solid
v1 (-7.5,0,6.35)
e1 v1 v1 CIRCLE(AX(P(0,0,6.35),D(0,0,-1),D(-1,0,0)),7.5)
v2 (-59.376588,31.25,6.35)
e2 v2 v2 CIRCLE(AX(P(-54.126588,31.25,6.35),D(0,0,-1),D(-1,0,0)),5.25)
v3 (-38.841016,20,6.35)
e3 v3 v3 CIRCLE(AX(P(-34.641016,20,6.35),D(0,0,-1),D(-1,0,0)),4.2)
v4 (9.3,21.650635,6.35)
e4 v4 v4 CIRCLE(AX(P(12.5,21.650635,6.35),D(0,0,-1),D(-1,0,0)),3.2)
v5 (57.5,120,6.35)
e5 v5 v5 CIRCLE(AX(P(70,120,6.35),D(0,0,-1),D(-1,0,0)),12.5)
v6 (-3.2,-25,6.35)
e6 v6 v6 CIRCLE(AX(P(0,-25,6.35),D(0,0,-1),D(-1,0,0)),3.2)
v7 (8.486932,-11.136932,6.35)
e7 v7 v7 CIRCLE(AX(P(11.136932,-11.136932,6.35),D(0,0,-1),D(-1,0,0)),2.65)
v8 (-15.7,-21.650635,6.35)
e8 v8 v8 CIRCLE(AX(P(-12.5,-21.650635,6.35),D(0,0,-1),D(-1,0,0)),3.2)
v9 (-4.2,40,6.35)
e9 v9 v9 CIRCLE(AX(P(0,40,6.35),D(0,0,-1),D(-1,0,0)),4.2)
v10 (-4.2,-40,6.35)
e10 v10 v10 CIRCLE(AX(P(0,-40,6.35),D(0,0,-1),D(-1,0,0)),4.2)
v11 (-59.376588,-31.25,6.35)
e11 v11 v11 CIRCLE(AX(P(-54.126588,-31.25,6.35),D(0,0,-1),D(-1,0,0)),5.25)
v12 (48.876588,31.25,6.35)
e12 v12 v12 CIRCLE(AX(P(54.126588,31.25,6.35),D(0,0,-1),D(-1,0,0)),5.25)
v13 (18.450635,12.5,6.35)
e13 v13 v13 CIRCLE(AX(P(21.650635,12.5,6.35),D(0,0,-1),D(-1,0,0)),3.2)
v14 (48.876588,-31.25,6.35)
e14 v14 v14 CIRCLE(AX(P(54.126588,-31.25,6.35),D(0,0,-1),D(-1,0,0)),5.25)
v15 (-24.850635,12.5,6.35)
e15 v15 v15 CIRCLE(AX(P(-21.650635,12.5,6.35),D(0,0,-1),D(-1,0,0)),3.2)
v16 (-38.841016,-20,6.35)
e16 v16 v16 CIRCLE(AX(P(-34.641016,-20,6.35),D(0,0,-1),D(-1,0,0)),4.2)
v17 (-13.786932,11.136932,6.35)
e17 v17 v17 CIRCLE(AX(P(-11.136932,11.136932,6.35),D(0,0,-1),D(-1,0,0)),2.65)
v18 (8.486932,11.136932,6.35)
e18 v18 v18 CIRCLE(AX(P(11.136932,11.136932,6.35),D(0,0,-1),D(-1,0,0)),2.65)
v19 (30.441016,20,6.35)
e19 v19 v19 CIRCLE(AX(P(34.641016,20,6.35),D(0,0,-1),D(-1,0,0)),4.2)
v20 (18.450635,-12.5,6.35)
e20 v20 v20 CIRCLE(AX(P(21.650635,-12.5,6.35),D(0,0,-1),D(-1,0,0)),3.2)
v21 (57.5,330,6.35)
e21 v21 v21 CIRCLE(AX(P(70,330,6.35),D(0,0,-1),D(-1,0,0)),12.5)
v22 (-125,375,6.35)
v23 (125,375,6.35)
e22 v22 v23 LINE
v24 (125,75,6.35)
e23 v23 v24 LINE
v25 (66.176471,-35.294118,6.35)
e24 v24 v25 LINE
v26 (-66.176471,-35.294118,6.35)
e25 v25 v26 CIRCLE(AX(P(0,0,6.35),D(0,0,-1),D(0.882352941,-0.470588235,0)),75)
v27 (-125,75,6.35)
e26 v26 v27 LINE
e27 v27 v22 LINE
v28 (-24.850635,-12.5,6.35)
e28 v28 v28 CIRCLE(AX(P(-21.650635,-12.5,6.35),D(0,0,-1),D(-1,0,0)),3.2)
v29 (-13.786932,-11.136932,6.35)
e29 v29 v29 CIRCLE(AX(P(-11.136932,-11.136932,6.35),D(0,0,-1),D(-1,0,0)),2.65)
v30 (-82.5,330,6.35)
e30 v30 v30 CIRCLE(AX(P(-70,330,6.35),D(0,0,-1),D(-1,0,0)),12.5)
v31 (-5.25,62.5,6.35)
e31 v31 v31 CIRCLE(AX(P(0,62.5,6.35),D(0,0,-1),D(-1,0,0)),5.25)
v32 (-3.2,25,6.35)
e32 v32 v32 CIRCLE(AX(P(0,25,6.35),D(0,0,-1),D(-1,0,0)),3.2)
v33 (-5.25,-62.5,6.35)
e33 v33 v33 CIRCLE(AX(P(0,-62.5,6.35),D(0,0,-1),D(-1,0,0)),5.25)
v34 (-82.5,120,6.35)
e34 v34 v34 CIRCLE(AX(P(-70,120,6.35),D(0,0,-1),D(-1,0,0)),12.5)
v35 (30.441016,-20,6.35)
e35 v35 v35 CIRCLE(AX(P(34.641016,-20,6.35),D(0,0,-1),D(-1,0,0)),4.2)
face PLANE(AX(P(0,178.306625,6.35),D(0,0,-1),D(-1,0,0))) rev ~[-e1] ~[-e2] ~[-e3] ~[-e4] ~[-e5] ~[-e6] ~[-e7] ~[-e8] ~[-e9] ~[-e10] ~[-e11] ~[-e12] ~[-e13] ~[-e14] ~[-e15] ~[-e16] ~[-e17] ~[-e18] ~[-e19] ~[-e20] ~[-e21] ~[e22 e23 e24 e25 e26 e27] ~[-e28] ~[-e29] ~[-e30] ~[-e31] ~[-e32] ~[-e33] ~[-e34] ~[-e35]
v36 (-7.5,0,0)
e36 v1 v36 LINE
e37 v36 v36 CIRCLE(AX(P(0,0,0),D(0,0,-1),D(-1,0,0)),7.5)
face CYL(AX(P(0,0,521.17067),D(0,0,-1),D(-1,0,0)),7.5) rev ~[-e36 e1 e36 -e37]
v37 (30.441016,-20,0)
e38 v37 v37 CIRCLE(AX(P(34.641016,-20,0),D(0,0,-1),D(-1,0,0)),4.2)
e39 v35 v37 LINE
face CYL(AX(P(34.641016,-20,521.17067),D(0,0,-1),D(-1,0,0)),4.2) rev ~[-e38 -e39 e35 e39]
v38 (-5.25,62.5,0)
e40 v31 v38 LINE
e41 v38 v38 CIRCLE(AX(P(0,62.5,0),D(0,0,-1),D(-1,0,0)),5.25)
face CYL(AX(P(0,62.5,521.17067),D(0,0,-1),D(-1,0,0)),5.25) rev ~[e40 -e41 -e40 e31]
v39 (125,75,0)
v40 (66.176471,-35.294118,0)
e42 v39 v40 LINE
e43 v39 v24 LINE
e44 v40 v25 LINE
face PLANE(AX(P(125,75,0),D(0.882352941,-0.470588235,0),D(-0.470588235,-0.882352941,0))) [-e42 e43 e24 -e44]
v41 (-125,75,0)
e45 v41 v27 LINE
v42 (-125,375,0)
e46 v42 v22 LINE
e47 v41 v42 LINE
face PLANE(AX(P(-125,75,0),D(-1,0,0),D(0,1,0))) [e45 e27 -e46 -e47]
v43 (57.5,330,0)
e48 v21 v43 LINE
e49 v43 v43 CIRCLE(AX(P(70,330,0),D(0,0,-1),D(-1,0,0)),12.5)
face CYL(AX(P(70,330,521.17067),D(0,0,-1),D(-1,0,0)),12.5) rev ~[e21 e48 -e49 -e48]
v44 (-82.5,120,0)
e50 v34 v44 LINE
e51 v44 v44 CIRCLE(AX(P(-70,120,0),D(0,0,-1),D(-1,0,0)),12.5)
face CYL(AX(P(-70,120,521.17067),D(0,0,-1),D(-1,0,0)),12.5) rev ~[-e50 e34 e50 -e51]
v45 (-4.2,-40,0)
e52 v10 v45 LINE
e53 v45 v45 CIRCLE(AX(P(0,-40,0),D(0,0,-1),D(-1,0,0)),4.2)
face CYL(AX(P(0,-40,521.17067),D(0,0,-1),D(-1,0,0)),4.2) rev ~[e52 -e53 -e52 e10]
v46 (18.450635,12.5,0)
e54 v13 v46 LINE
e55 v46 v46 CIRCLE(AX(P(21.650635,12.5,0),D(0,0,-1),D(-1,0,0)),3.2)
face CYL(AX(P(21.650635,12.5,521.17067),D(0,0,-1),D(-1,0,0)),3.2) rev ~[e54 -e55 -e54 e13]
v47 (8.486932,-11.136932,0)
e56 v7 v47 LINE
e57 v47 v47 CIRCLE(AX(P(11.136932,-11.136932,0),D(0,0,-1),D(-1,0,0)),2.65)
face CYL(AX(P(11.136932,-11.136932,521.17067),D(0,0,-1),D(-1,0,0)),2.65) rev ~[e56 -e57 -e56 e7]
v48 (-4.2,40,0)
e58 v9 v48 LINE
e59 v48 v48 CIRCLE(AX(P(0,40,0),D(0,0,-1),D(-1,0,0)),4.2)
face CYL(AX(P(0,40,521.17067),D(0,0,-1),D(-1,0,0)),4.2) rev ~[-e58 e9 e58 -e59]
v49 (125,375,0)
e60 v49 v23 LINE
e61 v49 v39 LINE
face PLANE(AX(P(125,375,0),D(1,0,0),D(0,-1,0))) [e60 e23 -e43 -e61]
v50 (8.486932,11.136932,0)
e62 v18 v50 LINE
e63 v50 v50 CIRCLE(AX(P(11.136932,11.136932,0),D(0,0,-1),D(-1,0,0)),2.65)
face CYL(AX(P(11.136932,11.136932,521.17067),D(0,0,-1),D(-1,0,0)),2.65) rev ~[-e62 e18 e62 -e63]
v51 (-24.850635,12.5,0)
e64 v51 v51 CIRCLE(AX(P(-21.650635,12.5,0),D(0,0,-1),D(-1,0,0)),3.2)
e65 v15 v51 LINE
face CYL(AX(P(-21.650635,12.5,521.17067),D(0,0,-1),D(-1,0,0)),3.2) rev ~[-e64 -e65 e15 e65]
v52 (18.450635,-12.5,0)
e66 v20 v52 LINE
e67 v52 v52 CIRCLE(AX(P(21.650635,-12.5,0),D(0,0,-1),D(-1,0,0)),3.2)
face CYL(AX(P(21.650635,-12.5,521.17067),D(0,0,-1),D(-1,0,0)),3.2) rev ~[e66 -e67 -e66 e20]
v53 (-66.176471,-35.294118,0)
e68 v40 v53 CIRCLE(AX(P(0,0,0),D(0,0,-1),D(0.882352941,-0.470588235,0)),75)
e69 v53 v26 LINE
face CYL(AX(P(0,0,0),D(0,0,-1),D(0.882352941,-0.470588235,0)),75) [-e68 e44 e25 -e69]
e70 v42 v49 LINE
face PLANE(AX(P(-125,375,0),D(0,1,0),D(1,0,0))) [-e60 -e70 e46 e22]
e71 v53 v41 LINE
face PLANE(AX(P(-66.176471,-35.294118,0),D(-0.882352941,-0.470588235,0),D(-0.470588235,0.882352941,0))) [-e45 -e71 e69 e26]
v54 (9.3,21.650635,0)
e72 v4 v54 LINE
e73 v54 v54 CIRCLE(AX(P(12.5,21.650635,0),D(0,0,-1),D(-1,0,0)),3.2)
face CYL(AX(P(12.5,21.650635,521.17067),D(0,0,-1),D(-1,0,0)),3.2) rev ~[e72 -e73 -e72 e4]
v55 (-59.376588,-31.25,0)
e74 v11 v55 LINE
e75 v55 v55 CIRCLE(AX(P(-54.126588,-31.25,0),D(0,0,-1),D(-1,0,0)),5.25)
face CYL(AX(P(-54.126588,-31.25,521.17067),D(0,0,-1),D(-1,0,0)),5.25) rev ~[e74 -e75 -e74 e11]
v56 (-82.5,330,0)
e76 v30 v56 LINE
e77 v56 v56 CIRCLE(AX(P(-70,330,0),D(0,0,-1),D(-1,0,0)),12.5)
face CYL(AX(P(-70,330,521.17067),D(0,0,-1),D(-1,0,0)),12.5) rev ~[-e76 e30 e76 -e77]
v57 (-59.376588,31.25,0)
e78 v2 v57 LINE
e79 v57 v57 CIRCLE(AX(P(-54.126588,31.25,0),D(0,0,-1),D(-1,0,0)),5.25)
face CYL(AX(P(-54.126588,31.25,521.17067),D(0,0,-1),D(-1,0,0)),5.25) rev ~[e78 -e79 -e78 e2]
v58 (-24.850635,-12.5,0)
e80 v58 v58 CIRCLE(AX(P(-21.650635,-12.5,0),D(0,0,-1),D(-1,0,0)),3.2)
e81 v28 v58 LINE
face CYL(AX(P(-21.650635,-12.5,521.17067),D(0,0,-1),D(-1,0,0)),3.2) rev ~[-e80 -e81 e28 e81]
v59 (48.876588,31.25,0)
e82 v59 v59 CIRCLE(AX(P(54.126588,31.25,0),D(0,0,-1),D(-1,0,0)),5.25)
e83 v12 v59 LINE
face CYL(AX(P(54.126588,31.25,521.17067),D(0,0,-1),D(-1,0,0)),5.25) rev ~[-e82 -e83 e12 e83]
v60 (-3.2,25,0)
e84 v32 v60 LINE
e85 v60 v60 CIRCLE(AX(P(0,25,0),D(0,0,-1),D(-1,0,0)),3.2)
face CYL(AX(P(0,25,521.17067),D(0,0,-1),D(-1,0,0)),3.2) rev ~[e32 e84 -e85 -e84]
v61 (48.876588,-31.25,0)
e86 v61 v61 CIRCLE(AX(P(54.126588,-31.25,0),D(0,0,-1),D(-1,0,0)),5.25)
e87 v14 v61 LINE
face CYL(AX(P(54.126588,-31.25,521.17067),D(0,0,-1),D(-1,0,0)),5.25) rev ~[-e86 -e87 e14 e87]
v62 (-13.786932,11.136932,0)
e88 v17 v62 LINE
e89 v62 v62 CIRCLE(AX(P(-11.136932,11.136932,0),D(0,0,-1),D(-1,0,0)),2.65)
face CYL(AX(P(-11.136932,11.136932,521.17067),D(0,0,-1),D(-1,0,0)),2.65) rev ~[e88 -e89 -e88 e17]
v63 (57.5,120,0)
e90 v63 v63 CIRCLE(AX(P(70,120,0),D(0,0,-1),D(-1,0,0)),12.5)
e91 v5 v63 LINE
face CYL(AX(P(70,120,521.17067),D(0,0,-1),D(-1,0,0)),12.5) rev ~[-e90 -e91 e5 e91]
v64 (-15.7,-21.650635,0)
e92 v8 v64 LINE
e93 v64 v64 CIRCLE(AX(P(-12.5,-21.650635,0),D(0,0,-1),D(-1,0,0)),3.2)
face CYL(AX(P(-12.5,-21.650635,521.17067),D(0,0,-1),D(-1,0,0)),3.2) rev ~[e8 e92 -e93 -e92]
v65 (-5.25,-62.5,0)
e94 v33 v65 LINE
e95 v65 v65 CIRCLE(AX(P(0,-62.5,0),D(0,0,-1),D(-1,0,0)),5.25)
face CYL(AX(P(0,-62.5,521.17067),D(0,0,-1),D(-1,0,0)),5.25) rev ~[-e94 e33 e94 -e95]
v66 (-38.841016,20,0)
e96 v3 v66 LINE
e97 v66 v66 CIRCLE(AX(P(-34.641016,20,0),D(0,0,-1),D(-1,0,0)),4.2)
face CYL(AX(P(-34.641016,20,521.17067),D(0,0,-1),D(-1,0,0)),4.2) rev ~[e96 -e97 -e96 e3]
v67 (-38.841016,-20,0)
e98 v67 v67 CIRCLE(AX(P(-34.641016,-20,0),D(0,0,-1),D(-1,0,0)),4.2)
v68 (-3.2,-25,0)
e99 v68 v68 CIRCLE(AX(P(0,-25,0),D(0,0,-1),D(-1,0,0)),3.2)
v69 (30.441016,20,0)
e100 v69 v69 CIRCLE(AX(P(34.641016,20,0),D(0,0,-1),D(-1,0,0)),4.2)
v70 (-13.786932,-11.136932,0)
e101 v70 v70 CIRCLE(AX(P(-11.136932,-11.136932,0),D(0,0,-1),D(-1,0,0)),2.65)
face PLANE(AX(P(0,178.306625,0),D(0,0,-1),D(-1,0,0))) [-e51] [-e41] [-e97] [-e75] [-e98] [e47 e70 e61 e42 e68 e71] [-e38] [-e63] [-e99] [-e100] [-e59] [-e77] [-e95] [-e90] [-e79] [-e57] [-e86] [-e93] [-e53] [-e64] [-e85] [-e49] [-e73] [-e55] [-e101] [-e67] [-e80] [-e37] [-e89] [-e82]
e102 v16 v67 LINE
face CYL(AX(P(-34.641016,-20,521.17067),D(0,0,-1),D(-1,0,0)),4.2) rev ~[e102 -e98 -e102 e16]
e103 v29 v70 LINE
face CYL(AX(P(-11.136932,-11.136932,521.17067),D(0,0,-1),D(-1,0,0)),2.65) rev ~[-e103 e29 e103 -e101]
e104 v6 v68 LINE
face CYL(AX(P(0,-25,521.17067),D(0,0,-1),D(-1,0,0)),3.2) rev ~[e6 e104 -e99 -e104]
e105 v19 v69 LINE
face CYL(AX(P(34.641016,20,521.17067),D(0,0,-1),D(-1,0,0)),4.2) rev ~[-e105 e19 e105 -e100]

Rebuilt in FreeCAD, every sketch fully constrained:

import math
import FreeCAD as App
import Part
import Sketcher

V = App.Vector

doc = App.newDocument("Part")
params = doc.addObject("Spreadsheet::Sheet", "Params")
for row, (alias, value) in enumerate([
    ("sketch1_radius", "75 mm"),
    ("sketch1_width", "250 mm"),
    ("sketch1_height", "300 mm"),
    ("sketch1_length", "125 mm"),
    ("pad1_length", "6.35 mm"),
    ("sketch2_diameter", "8.4 mm"),
    ("hole_diameter", "8.4 mm"),
    ("sketch3_diameter", "6.4 mm"),
    ("hole2_diameter", "6.4 mm"),
    ("sketch4_diameter", "6.4 mm"),
    ("hole3_diameter", "6.4 mm"),
    ("sketch5_diameter", "10.5 mm"),
    ("hole4_diameter", "10.5 mm"),
    ("sketch6_diameter", "5.3 mm"),
    ("hole5_diameter", "5.3 mm"),
    ("sketch7_diameter", "25 mm"),
    ("hole6_diameter", "25 mm"),
    ("sketch8_diameter", "15 mm"),
    ("hole7_diameter", "15 mm"),
], start=1):
    params.set(f"A{row}", alias)
    params.set(f"B{row}", "=" + value)
    params.setAlias(f"B{row}", alias)

body = doc.addObject("PartDesign::Body", "Body")

sketch1 = doc.addObject("Sketcher::SketchObject", "Sketch")
body.addObject(sketch1)
sketch1.AttachmentSupport = (doc.XY_Plane, [""])
sketch1.MapMode = "FlatFace"
sketch1.addGeometry([
    Part.LineSegment(V(125, 375, 0), V(-125, 375, 0)),
    Part.LineSegment(V(-125, 375, 0), V(-125, 75, 0)),
    Part.LineSegment(V(-125, 75, 0), V(-66, -35, 0)),
    Part.ArcOfCircle(Part.Circle(V(0, 0, 0), V(0, 0, 1), 75), math.radians(-152), math.radians(-28)),
    Part.LineSegment(V(66, -35, 0), V(125, 75, 0)),
    Part.LineSegment(V(125, 75, 0), V(125, 375, 0)),
], False)
sketch1.addConstraint([
    Sketcher.Constraint("Coincident", 0, 2, 1, 1),
    Sketcher.Constraint("Coincident", 1, 2, 2, 1),
    Sketcher.Constraint("Tangent", 2, 2, 3, 1),
    Sketcher.Constraint("Tangent", 3, 2, 4, 1),
    Sketcher.Constraint("Coincident", 4, 2, 5, 1),
    Sketcher.Constraint("Coincident", 5, 2, 0, 1),
    Sketcher.Constraint("Horizontal", 0),
    Sketcher.Constraint("Vertical", 1),
    Sketcher.Constraint("Vertical", 5),
    Sketcher.Constraint("Coincident", 3, 3, -1, 1),
    Sketcher.Constraint("Symmetric", 1, 2, 4, 2, -2),
    Sketcher.Constraint("Radius", 3, 75.0),
    Sketcher.Constraint("DistanceX", 0, 2, 0, 1, 250.0),
    Sketcher.Constraint("DistanceY", 1, 2, 1, 1, 300.0),
    Sketcher.Constraint("Distance", 2, 125.0),
])
sketch1.setExpression("Constraints[11]", "Params.sketch1_radius")
sketch1.setExpression("Constraints[12]", "Params.sketch1_width")
sketch1.setExpression("Constraints[13]", "Params.sketch1_height")
sketch1.setExpression("Constraints[14]", "Params.sketch1_length")
pad1 = doc.addObject("PartDesign::Pad", "Pad")
body.addObject(pad1)
pad1.Profile = sketch1
pad1.setExpression("Length", "Params.pad1_length")

sketch2 = doc.addObject("Sketcher::SketchObject", "Sketch001")
body.addObject(sketch2)
sketch2.AttachmentSupport = (doc.XY_Plane, [""])
sketch2.MapMode = "FlatFace"
sketch2.AttachmentOffset = App.Placement(V(0, 0, 6.35), App.Rotation())
sketch2.addGeometry([
    Part.Circle(V(-34.6, 20, 0), V(0, 0, 1), 4.2),
    Part.Circle(V(-34.6, -20, 0), V(0, 0, 1), 4.2),
    Part.Circle(V(0, -40, 0), V(0, 0, 1), 4.2),
    Part.Circle(V(34.6, -20, 0), V(0, 0, 1), 4.2),
    Part.Circle(V(34.6, 20, 0), V(0, 0, 1), 4.2),
    Part.Circle(V(0, 40, 0), V(0, 0, 1), 4.2),
], False)
sketch2.addConstraint([
    Sketcher.Constraint("Equal", 0, 1),
    Sketcher.Constraint("Equal", 1, 2),
    Sketcher.Constraint("Equal", 2, 3),
    Sketcher.Constraint("Equal", 3, 4),
    Sketcher.Constraint("Equal", 4, 5),
    Sketcher.Constraint("Symmetric", 0, 3, 3, 3, -1, 1),
    Sketcher.Constraint("Symmetric", 1, 3, 4, 3, -1, 1),
    Sketcher.Constraint("Symmetric", 2, 3, 5, 3, -1, 1),
    Sketcher.Constraint("Symmetric", 1, 3, 3, 3, -2),
    Sketcher.Constraint("PointOnObject", 2, 3, -2),
    Sketcher.Constraint("Diameter", 0, 8.4),
    Sketcher.Constraint("DistanceY", -1, 1, 0, 3, 20.0),
    Sketcher.Constraint("DistanceY", 2, 3, -1, 1, 40.0),
    Sketcher.Constraint("DistanceX", 0, 3, -1, 1, 34.641016),
])
sketch2.setExpression("Constraints[10]", "Params.sketch2_diameter")
doc.recompute()
hole = doc.addObject("PartDesign::Hole", "Hole")
body.addObject(hole)
hole.Profile = sketch2
hole.ThreadType = "None"
hole.setExpression("Diameter", "Params.hole_diameter")
hole.DepthType = "ThroughAll"

sketch3 = doc.addObject("Sketcher::SketchObject", "Sketch002")
body.addObject(sketch3)
sketch3.AttachmentSupport = (doc.XY_Plane, [""])
sketch3.MapMode = "FlatFace"
sketch3.AttachmentOffset = App.Placement(V(0, 0, 6.35), App.Rotation())
sketch3.addGeometry([
    Part.Circle(V(0, 25, 0), V(0, 0, 1), 3.2),
    Part.Circle(V(21.7, -12.5, 0), V(0, 0, 1), 3.2),
    Part.Circle(V(21.7, 12.5, 0), V(0, 0, 1), 3.2),
    Part.Circle(V(-21.7, 12.5, 0), V(0, 0, 1), 3.2),
    Part.Circle(V(-21.7, -12.5, 0), V(0, 0, 1), 3.2),
    Part.Circle(V(0, -25, 0), V(0, 0, 1), 3.2),
], False)
sketch3.addConstraint([
    Sketcher.Constraint("Equal", 0, 1),
    Sketcher.Constraint("Equal", 1, 2),
    Sketcher.Constraint("Equal", 2, 3),
    Sketcher.Constraint("Equal", 3, 4),
    Sketcher.Constraint("Equal", 4, 5),
    Sketcher.Constraint("Symmetric", 1, 3, 3, 3, -1, 1),
    Sketcher.Constraint("Symmetric", 2, 3, 4, 3, -1, 1),
    Sketcher.Constraint("Symmetric", 0, 3, 5, 3, -1, 1),
    Sketcher.Constraint("Symmetric", 2, 3, 3, 3, -2),
    Sketcher.Constraint("PointOnObject", 0, 3, -2),
    Sketcher.Constraint("Diameter", 0, 6.4),
    Sketcher.Constraint("DistanceY", -1, 1, 0, 3, 25.0),
    Sketcher.Constraint("DistanceY", 1, 3, 2, 3, 25.0),
    Sketcher.Constraint("DistanceX", 3, 3, 2, 3, 43.30127),
])
sketch3.setExpression("Constraints[10]", "Params.sketch3_diameter")
doc.recompute()
hole2 = doc.addObject("PartDesign::Hole", "Hole001")
body.addObject(hole2)
hole2.Profile = sketch3
hole2.ThreadType = "None"
hole2.setExpression("Diameter", "Params.hole2_diameter")
hole2.DepthType = "ThroughAll"

sketch4 = doc.addObject("Sketcher::SketchObject", "Sketch003")
body.addObject(sketch4)
sketch4.AttachmentSupport = (doc.XY_Plane, [""])
sketch4.MapMode = "FlatFace"
sketch4.AttachmentOffset = App.Placement(V(0, 0, 6.35), App.Rotation())
sketch4.addGeometry([
    Part.Circle(V(12.5, 21.7, 0), V(0, 0, 1), 3.2),
    Part.Circle(V(-21.7, 12.5, 0), V(0, 0, 1), 3.2),
    Part.Circle(V(-12.5, -21.7, 0), V(0, 0, 1), 3.2),
    Part.Circle(V(21.7, -12.5, 0), V(0, 0, 1), 3.2),
], False)
sketch4.addConstraint([
    Sketcher.Constraint("Equal", 0, 1),
    Sketcher.Constraint("Equal", 1, 2),
    Sketcher.Constraint("Equal", 2, 3),
    Sketcher.Constraint("Symmetric", 0, 3, 2, 3, -1, 1),
    Sketcher.Constraint("Symmetric", 1, 3, 3, 3, -1, 1),
    Sketcher.Constraint("Diameter", 0, 6.4),
    Sketcher.Constraint("DistanceX", 2, 3, 0, 3, 25.0),
    Sketcher.Constraint("DistanceY", 3, 3, 1, 3, 25.0),
    Sketcher.Constraint("DistanceY", 2, 3, 0, 3, 43.30127),
    Sketcher.Constraint("DistanceX", 1, 3, 3, 3, 43.30127),
])
sketch4.setExpression("Constraints[5]", "Params.sketch4_diameter")
doc.recompute()
hole3 = doc.addObject("PartDesign::Hole", "Hole002")
body.addObject(hole3)
hole3.Profile = sketch4
hole3.ThreadType = "None"
hole3.setExpression("Diameter", "Params.hole3_diameter")
hole3.DepthType = "ThroughAll"

sketch5 = doc.addObject("Sketcher::SketchObject", "Sketch004")
body.addObject(sketch5)
sketch5.AttachmentSupport = (doc.XY_Plane, [""])
sketch5.MapMode = "FlatFace"
sketch5.AttachmentOffset = App.Placement(V(0, 0, 6.35), App.Rotation())
sketch5.addGeometry([
    Part.Circle(V(-54, 31, 0), V(0, 0, 1), 5),
    Part.Circle(V(0, 62, 0), V(0, 0, 1), 5),
    Part.Circle(V(54, 31, 0), V(0, 0, 1), 5),
    Part.Circle(V(54, -31, 0), V(0, 0, 1), 5),
    Part.Circle(V(0, -62, 0), V(0, 0, 1), 5),
    Part.Circle(V(-54, -31, 0), V(0, 0, 1), 5),
], False)
sketch5.addConstraint([
    Sketcher.Constraint("Equal", 0, 1),
    Sketcher.Constraint("Equal", 1, 2),
    Sketcher.Constraint("Equal", 2, 3),
    Sketcher.Constraint("Equal", 3, 4),
    Sketcher.Constraint("Equal", 4, 5),
    Sketcher.Constraint("Symmetric", 0, 3, 3, 3, -1, 1),
    Sketcher.Constraint("Symmetric", 1, 3, 4, 3, -1, 1),
    Sketcher.Constraint("Symmetric", 2, 3, 5, 3, -1, 1),
    Sketcher.Constraint("Symmetric", 0, 3, 2, 3, -2),
    Sketcher.Constraint("PointOnObject", 1, 3, -2),
    Sketcher.Constraint("Diameter", 0, 10.5),
    Sketcher.Constraint("DistanceY", 4, 3, 1, 3, 125.0),
    Sketcher.Constraint("DistanceY", 3, 3, 2, 3, 62.5),
    Sketcher.Constraint("DistanceX", 0, 3, -1, 1, 54.126588),
])
sketch5.setExpression("Constraints[10]", "Params.sketch5_diameter")
doc.recompute()
hole4 = doc.addObject("PartDesign::Hole", "Hole003")
body.addObject(hole4)
hole4.Profile = sketch5
hole4.ThreadType = "None"
hole4.setExpression("Diameter", "Params.hole4_diameter")
hole4.DepthType = "ThroughAll"

sketch6 = doc.addObject("Sketcher::SketchObject", "Sketch005")
body.addObject(sketch6)
sketch6.AttachmentSupport = (doc.XY_Plane, [""])
sketch6.MapMode = "FlatFace"
sketch6.AttachmentOffset = App.Placement(V(0, 0, 6.35), App.Rotation())
sketch6.addGeometry([
    Part.Circle(V(-11.1, 11.1, 0), V(0, 0, 1), 2.6),
    Part.Circle(V(11.1, 11.1, 0), V(0, 0, 1), 2.6),
    Part.Circle(V(11.1, -11.1, 0), V(0, 0, 1), 2.6),
    Part.Circle(V(-11.1, -11.1, 0), V(0, 0, 1), 2.6),
], False)
sketch6.addConstraint([
    Sketcher.Constraint("Equal", 0, 1),
    Sketcher.Constraint("Equal", 1, 2),
    Sketcher.Constraint("Equal", 2, 3),
    Sketcher.Constraint("Symmetric", 0, 3, 2, 3, -1, 1),
    Sketcher.Constraint("Symmetric", 1, 3, 3, 3, -1, 1),
    Sketcher.Constraint("Symmetric", 0, 3, 1, 3, -2),
    Sketcher.Constraint("Diameter", 0, 5.3),
    Sketcher.Constraint("DistanceX", 0, 3, -1, 1, 11.136932),
    Sketcher.Constraint("DistanceY", -1, 1, 0, 3, 11.136932),
])
sketch6.setExpression("Constraints[6]", "Params.sketch6_diameter")
doc.recompute()
hole5 = doc.addObject("PartDesign::Hole", "Hole004")
body.addObject(hole5)
hole5.Profile = sketch6
hole5.ThreadType = "None"
hole5.setExpression("Diameter", "Params.hole5_diameter")
hole5.DepthType = "ThroughAll"

sketch7 = doc.addObject("Sketcher::SketchObject", "Sketch006")
body.addObject(sketch7)
sketch7.AttachmentSupport = (doc.XY_Plane, [""])
sketch7.MapMode = "FlatFace"
sketch7.AttachmentOffset = App.Placement(V(0, 0, 6.35), App.Rotation())
sketch7.addGeometry([
    Part.Circle(V(-70, 330, 0), V(0, 0, 1), 12),
    Part.Circle(V(-70, 120, 0), V(0, 0, 1), 12),
    Part.Circle(V(70, 120, 0), V(0, 0, 1), 12),
    Part.Circle(V(70, 330, 0), V(0, 0, 1), 12),
], False)
sketch7.addConstraint([
    Sketcher.Constraint("Equal", 0, 1),
    Sketcher.Constraint("Equal", 1, 2),
    Sketcher.Constraint("Equal", 2, 3),
    Sketcher.Constraint("Symmetric", 1, 3, 2, 3, -2),
    Sketcher.Constraint("Symmetric", 0, 3, 3, 3, -2),
    Sketcher.Constraint("Vertical", 0, 3, 1, 3),
    Sketcher.Constraint("Diameter", 0, 25.0),
    Sketcher.Constraint("DistanceX", 0, 3, -1, 1, 70.0),
    Sketcher.Constraint("DistanceY", -1, 1, 0, 3, 330.0),
    Sketcher.Constraint("DistanceY", -1, 1, 1, 3, 120.0),
])
sketch7.setExpression("Constraints[6]", "Params.sketch7_diameter")
doc.recompute()
hole6 = doc.addObject("PartDesign::Hole", "Hole005")
body.addObject(hole6)
hole6.Profile = sketch7
hole6.ThreadType = "None"
hole6.setExpression("Diameter", "Params.hole6_diameter")
hole6.DepthType = "ThroughAll"

sketch8 = doc.addObject("Sketcher::SketchObject", "Sketch007")
body.addObject(sketch8)
sketch8.AttachmentSupport = (doc.XY_Plane, [""])
sketch8.MapMode = "FlatFace"
sketch8.AttachmentOffset = App.Placement(V(0, 0, 6.35), App.Rotation())
sketch8.addGeometry(Part.Circle(V(0, 0, 0), V(0, 0, 1), 8), False)
sketch8.addConstraint([
    Sketcher.Constraint("Coincident", 0, 3, -1, 1),
    Sketcher.Constraint("Diameter", 0, 15.0),
])
sketch8.setExpression("Constraints[1]", "Params.sketch8_diameter")
doc.recompute()
hole7 = doc.addObject("PartDesign::Hole", "Hole006")
body.addObject(hole7)
hole7.Profile = sketch8
hole7.ThreadType = "None"
hole7.setExpression("Diameter", "Params.hole7_diameter")
hole7.DepthType = "ThroughAll"

doc.recompute()
